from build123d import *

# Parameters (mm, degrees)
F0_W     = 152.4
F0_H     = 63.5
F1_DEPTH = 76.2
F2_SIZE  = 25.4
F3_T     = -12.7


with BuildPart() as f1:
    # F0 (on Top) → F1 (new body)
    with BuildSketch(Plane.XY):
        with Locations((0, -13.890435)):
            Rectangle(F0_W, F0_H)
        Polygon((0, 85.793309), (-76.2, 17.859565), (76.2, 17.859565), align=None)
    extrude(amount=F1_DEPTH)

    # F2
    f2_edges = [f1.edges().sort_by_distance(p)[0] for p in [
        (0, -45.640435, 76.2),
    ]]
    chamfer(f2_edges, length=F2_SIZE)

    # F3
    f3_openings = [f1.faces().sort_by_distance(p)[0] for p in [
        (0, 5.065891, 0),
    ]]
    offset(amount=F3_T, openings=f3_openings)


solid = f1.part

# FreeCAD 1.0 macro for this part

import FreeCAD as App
import Part
import Sketcher
Q = App.Units.Quantity


def edges_at(feature, points):
    """Names of the edges that pass closest to the given points."""
    edges = feature.Shape.Edges
    near = lambda p: min(range(len(edges)), key=lambda i: edges[i].distToShape(Part.Vertex(*p))[0])
    return sorted({f"Edge{near(p) + 1}" for p in points})


def faces_at(feature, points):
    """Names of the faces that lie closest to the given points."""
    faces = feature.Shape.Faces
    near = lambda p: min(range(len(faces)), key=lambda i: faces[i].distToShape(Part.Vertex(*p))[0])
    return sorted({f"Face{near(p) + 1}" for p in points})

doc = App.newDocument("Part")
body = doc.addObject("PartDesign::Body", "Body")

# Sketch on XY plane
sketch1 = doc.addObject("Sketcher::SketchObject", "Sketch")
body.addObject(sketch1)
sketch1.AttachmentSupport = (doc.XY_Plane, [""])
sketch1.MapMode = "FlatFace"
sketch1.addGeometry([
    Part.LineSegment(App.Vector(-76.2, 17.859565, 0), App.Vector(-76.2, -45.640435, 0)),  # 0
    Part.LineSegment(App.Vector(-76.2, -45.640435, 0), App.Vector(76.2, -45.640435, 0)),  # 1
    Part.LineSegment(App.Vector(76.2, -45.640435, 0), App.Vector(76.2, 17.859565, 0)),  # 2
    Part.LineSegment(App.Vector(76.2, 17.859565, 0), App.Vector(0, 85.793309, 0)),  # 3
    Part.LineSegment(App.Vector(0, 85.793309, 0), App.Vector(-76.2, 17.859565, 0)),  # 4
], False)
sketch1.addConstraint([
    Sketcher.Constraint("Coincident", 0, 2, 1, 1),
    Sketcher.Constraint("Coincident", 1, 2, 2, 1),
    Sketcher.Constraint("Coincident", 2, 2, 3, 1),
    Sketcher.Constraint("Coincident", 3, 2, 4, 1),
    Sketcher.Constraint("Coincident", 4, 2, 0, 1),
    Sketcher.Constraint("Vertical", 0),
    Sketcher.Constraint("Horizontal", 1),
    Sketcher.Constraint("Vertical", 2),
    Sketcher.Constraint("Symmetric", 2, 2, 4, 2, -2),
    Sketcher.Constraint("PointOnObject", 3, 2, -2),
    Sketcher.Constraint("DistanceX", 1, 1, 1, 2, Q("6 in")),
    Sketcher.Constraint("DistanceY", 0, 2, 0, 1, Q("2.5 in")),
    Sketcher.Constraint("DistanceY", -1, 1, 3, 2, 85.793309),
    Sketcher.Constraint("Distance", 3, 102.085423),
])
pad1 = doc.addObject("PartDesign::Pad", "Pad")
body.addObject(pad1)
pad1.Profile = sketch1
pad1.Length = Q("3 in")
doc.recompute()

chamfer = doc.addObject("PartDesign::Chamfer", "Chamfer")
body.addObject(chamfer)
chamfer.Base = (pad1, edges_at(pad1, [(0, -45.64, 76.2)]))
chamfer.Size = Q("1 in")
doc.recompute()

thickness = doc.addObject("PartDesign::Thickness", "Thickness")
body.addObject(thickness)
thickness.Base = (chamfer, faces_at(chamfer, [(0, 20.076, 0)]))
thickness.Value = Q("0.5 in")
thickness.Reversed = True
thickness.Join = "Arc"

doc.recompute()
